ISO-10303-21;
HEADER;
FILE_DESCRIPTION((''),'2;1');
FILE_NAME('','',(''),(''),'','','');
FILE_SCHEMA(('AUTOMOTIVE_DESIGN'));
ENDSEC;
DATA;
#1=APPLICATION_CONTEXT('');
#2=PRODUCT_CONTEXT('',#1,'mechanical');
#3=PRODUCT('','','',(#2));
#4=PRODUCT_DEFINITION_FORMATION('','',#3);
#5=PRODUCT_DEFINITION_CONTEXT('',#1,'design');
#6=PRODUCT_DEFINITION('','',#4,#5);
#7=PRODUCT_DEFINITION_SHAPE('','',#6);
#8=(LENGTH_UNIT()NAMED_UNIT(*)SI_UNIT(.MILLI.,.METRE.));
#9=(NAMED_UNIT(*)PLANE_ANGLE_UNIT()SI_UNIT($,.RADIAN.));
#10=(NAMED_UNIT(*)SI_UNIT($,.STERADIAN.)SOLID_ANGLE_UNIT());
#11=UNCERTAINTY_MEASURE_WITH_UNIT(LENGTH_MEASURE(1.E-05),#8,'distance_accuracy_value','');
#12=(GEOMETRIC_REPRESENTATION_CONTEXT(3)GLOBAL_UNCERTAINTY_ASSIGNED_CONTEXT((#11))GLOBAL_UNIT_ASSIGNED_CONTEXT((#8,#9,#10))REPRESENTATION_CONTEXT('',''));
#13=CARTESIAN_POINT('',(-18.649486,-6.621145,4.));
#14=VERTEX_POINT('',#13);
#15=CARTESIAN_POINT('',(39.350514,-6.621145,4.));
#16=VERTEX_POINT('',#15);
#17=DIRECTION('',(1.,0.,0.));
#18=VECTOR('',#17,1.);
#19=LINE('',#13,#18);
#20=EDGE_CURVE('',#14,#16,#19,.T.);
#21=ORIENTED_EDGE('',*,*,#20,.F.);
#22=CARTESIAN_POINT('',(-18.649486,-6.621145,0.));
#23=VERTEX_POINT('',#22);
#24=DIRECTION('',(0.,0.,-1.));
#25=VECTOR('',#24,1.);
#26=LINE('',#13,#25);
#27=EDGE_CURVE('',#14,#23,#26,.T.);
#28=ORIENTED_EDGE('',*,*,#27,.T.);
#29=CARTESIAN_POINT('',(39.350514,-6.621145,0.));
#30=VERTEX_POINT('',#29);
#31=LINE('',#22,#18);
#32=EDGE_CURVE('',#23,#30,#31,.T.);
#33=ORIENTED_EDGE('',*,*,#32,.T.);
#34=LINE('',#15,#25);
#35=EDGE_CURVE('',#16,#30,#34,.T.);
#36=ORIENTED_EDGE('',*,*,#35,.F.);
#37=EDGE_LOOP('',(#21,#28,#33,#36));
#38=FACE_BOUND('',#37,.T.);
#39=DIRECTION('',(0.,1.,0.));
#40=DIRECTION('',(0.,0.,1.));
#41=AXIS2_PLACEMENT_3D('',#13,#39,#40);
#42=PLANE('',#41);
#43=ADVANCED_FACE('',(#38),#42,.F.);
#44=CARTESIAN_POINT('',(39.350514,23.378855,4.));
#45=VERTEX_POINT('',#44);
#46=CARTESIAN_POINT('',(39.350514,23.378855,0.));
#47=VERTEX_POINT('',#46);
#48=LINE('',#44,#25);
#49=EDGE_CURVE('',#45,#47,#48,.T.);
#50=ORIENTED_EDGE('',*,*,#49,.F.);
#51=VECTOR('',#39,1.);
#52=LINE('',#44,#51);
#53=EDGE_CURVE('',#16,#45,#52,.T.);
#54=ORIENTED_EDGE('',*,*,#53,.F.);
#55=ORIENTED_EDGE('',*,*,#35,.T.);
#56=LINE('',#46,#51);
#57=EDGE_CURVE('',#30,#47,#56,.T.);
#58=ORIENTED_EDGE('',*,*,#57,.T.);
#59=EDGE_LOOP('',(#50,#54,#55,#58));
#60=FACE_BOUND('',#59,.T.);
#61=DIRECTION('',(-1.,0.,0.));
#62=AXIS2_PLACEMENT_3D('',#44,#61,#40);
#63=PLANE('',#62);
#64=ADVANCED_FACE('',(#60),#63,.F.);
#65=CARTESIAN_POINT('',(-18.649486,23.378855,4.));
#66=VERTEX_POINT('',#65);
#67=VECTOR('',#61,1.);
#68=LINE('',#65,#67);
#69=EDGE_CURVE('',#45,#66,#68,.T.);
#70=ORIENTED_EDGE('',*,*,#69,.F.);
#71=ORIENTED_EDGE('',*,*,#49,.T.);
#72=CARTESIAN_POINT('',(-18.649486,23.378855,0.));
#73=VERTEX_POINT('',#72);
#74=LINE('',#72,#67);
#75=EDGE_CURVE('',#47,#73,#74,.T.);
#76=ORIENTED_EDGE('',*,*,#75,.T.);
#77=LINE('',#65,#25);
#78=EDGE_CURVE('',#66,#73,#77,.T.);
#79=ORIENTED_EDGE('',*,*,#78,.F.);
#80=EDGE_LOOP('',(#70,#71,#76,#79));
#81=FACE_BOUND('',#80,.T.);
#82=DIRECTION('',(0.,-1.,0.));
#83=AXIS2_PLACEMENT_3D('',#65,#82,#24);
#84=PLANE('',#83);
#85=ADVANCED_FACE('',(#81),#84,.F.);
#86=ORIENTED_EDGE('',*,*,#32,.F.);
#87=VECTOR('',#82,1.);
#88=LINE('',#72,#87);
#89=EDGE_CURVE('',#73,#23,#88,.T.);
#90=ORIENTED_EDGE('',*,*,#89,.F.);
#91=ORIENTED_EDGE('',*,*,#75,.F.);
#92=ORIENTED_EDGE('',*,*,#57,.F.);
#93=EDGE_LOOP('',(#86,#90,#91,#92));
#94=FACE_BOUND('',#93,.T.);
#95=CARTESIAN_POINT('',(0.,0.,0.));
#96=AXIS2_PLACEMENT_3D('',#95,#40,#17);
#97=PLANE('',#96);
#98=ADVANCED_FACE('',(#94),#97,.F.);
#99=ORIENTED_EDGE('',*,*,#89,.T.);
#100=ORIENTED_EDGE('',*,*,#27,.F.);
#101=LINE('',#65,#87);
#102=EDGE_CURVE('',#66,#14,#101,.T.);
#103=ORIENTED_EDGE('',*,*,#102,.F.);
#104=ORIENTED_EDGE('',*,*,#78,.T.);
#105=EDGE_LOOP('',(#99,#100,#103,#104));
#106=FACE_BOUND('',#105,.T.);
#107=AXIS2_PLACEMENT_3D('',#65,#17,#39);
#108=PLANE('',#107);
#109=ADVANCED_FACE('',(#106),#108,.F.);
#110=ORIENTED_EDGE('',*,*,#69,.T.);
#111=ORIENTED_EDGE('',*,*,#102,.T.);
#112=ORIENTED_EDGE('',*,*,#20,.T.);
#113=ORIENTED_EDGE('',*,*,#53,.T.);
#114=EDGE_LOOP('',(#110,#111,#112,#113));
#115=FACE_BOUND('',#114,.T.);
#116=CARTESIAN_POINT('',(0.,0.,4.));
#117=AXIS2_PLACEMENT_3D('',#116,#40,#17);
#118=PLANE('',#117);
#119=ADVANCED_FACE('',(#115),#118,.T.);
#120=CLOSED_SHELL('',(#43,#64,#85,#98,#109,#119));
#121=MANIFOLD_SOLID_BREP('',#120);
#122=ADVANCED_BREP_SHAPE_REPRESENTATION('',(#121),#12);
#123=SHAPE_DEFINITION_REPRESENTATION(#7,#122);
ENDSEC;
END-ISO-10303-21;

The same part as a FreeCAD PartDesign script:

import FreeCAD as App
import Part
import Sketcher
from FreeCAD import Vector
Q = App.Units.Quantity


def add_polygon(sketch, points):
    """Adds a closed chain of lines whose ends are joined by coincident constraints."""
    first, n = sketch.GeometryCount, len(points)
    for a, b in zip(points, points[1:] + points[:1]):
        sketch.addGeometry(Part.LineSegment(App.Vector(*a, 0), App.Vector(*b, 0)), False)
    for i in range(n):
        sketch.addConstraint(Sketcher.Constraint("Coincident", first + i, 2, first + (i + 1) % n, 1))

doc = App.newDocument("Part")
params = doc.addObject("Spreadsheet::Sheet", "Params")
for row, (alias, value) in enumerate([
    ("sketch1_width", "58 mm"),
    ("sketch1_height", "30 mm"),
    ("pad1_length", "4 mm"),
], start=1):
    params.set(f"A{row}", alias)
    params.set(f"B{row}", "=" + value)
    params.setAlias(f"B{row}", alias)

body = doc.addObject("PartDesign::Body", "Body")

sketch1 = body.newObject("Sketcher::SketchObject", "Sketch")
sketch1.AttachmentSupport = (doc.getObject("XY_Plane"), [""])
sketch1.MapMode = "FlatFace"
add_polygon(sketch1, [(-18.649486, 23.378855), (-18.649486, -6.621145), (39.350514, -6.621145), (39.350514, 23.378855)])
sketch1.addConstraint([
    Sketcher.Constraint("Vertical", 0),
    Sketcher.Constraint("Horizontal", 1),
    Sketcher.Constraint("Vertical", 2),
    Sketcher.Constraint("Horizontal", 3),
    Sketcher.Constraint("DistanceX", 1, 1, 1, 2, Q("58 mm")),
    Sketcher.Constraint("DistanceY", 0, 2, 0, 1, Q("30 mm")),
    Sketcher.Constraint("DistanceX", 0, 2, -1, 1, Q("18.649486 mm")),
    Sketcher.Constraint("DistanceY", 0, 2, -1, 1, Q("6.621145 mm")),
])
sketch1.setExpression("Constraints[8]", "Params.sketch1_width")
sketch1.setExpression("Constraints[9]", "Params.sketch1_height")
pad1 = body.newObject("PartDesign::Pad", "Pad")
pad1.Profile = sketch1
pad1.setExpression("Length", "Params.pad1_length")

doc.recompute()
